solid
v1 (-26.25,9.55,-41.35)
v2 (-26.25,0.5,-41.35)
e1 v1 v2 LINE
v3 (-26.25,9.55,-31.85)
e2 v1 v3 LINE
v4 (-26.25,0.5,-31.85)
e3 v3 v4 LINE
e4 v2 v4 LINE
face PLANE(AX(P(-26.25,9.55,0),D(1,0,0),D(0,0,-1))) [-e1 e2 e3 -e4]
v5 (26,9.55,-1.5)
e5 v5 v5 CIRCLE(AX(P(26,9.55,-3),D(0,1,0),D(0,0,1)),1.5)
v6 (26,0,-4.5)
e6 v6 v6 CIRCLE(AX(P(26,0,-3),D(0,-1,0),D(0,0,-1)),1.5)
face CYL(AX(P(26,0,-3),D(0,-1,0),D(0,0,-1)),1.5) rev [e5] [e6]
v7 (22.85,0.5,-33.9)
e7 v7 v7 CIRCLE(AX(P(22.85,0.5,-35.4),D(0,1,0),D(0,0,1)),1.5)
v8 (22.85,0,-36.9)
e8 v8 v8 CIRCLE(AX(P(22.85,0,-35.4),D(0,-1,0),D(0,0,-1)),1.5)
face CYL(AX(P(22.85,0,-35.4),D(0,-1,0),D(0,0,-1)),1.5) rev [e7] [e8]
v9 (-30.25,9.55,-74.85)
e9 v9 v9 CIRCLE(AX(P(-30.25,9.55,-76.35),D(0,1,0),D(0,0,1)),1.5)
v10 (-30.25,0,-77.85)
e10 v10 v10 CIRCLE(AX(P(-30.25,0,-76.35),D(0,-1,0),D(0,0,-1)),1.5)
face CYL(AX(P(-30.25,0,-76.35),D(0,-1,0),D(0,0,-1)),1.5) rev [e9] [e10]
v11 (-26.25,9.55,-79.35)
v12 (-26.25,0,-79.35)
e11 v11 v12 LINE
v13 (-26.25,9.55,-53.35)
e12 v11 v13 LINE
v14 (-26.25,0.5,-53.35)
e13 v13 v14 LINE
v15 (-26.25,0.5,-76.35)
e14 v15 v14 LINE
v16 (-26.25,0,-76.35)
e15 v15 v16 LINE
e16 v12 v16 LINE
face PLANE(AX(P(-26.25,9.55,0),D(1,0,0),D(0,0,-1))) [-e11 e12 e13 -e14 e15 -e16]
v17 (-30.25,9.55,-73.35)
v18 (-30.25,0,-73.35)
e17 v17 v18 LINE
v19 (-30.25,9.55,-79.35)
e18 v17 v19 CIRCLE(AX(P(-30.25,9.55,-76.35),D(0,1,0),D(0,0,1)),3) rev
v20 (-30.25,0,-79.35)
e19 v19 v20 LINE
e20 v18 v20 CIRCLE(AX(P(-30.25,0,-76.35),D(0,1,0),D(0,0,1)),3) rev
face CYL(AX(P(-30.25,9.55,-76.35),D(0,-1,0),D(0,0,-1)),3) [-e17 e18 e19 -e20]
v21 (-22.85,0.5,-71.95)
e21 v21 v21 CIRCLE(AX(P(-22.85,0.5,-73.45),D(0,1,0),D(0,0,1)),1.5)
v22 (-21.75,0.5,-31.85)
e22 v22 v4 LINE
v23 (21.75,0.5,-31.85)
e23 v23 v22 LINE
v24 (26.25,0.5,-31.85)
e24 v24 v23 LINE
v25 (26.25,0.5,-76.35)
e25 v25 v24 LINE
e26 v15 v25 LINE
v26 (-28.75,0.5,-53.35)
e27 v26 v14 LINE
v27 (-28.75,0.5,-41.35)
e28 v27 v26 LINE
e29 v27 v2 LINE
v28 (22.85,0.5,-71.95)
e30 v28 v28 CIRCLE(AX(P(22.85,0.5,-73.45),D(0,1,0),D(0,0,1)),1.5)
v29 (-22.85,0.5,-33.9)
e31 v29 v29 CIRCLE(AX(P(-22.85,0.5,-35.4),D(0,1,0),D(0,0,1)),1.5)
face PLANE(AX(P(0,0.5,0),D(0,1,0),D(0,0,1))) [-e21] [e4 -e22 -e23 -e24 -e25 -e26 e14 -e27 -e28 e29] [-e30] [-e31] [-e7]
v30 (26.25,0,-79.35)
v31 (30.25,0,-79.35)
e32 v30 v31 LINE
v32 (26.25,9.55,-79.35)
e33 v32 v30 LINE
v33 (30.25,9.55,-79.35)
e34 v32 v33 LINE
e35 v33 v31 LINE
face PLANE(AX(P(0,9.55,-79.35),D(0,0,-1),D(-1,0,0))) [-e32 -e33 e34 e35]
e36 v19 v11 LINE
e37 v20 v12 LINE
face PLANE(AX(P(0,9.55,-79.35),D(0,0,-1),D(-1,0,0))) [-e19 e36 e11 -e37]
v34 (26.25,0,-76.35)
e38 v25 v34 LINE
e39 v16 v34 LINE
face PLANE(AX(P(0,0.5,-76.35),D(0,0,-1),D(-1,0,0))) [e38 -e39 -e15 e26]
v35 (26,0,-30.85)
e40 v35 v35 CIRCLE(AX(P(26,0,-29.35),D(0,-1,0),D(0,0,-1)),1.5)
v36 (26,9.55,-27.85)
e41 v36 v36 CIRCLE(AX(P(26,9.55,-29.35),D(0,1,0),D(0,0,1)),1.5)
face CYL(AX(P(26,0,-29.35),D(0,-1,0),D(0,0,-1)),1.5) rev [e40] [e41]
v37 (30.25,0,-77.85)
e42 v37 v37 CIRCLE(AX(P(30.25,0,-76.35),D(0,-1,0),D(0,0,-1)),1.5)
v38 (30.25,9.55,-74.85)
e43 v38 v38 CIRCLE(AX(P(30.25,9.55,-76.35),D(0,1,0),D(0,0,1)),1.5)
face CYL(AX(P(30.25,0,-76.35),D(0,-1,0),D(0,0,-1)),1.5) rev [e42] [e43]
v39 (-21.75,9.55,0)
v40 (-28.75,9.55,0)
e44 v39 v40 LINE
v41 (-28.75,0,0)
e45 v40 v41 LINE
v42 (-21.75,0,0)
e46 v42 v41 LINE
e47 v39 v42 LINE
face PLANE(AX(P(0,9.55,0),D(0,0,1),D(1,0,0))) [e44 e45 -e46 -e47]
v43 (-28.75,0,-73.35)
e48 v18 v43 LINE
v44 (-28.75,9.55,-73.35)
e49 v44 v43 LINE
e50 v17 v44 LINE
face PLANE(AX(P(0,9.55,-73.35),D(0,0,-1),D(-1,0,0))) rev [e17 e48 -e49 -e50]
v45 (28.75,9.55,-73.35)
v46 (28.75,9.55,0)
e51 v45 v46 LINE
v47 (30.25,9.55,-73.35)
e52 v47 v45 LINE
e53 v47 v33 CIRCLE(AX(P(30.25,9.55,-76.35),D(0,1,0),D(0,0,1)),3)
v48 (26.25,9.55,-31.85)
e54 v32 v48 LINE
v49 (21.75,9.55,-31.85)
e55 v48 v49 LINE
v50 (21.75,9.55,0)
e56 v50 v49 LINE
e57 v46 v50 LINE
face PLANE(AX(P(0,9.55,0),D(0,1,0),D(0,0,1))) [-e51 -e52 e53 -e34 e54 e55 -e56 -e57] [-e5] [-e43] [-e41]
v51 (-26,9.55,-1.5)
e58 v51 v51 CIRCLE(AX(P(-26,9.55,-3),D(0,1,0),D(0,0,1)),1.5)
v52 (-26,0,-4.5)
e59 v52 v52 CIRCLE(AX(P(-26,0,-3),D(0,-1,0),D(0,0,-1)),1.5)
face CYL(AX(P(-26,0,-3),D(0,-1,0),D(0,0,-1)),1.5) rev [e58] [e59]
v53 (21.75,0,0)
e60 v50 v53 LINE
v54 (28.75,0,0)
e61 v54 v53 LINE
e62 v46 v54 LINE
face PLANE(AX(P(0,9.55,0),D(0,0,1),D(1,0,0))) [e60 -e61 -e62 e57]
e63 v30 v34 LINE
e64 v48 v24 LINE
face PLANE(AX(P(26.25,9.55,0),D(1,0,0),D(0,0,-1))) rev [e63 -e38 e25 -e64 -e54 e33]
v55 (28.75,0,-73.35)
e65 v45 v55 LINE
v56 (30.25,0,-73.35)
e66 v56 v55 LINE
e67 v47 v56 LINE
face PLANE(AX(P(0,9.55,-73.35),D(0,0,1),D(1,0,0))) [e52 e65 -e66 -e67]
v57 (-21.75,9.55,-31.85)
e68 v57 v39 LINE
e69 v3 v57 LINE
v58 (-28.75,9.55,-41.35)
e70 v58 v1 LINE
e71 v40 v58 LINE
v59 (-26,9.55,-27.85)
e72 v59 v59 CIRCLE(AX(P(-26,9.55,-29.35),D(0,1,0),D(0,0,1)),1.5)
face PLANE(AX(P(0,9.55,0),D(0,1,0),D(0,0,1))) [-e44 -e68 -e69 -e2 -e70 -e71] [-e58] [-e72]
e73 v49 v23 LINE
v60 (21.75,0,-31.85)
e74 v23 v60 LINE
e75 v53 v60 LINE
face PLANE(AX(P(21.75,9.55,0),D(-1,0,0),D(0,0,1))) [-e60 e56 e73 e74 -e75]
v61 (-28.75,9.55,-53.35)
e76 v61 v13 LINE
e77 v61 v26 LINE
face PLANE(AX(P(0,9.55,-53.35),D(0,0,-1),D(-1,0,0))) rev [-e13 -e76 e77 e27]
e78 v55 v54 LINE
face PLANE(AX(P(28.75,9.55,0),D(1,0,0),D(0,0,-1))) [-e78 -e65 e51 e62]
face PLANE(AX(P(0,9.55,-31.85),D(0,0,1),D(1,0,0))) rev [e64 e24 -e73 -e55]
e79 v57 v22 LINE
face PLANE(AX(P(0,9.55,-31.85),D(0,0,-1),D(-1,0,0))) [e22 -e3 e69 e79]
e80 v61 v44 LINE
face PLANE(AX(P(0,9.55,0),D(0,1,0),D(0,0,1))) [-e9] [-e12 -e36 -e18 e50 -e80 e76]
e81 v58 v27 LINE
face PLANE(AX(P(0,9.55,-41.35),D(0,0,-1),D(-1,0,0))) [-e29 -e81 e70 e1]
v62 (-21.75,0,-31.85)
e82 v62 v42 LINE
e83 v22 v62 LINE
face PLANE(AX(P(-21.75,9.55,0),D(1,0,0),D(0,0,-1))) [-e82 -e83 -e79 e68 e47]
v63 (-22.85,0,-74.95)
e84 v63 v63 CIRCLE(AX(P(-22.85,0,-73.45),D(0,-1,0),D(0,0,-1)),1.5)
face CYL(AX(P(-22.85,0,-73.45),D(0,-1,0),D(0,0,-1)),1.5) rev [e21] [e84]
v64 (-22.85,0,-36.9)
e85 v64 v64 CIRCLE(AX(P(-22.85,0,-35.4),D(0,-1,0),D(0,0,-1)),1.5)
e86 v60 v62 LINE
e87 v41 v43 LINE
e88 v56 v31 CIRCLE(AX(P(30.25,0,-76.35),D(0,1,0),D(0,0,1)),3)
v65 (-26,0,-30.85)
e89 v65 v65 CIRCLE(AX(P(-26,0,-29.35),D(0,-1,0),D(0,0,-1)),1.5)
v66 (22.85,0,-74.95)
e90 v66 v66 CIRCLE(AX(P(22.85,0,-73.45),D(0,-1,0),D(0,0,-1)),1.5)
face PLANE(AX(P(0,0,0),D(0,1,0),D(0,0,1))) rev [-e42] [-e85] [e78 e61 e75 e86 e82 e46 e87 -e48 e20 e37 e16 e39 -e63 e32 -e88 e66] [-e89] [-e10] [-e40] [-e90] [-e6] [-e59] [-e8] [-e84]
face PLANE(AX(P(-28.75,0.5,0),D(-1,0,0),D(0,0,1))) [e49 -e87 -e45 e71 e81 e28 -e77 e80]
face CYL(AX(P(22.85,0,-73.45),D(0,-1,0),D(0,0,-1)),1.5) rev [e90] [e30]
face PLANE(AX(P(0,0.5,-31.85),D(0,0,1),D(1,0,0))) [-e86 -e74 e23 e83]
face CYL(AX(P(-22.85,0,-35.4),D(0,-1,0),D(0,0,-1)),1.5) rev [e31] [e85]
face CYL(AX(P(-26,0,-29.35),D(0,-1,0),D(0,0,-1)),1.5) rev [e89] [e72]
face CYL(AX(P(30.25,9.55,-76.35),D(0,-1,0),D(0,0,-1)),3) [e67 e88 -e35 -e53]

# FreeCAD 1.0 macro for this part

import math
import FreeCAD as App
import Part
import Sketcher


def add_polygon(sketch, points):
    """Adds a closed chain of lines whose ends are joined by coincident constraints."""
    first, n = sketch.GeometryCount, len(points)
    for a, b in zip(points, points[1:] + points[:1]):
        sketch.addGeometry(Part.LineSegment(App.Vector(*a, 0), App.Vector(*b, 0)), False)
    for i in range(n):
        sketch.addConstraint(Sketcher.Constraint("Coincident", first + i, 2, first + (i + 1) % n, 1))

doc = App.newDocument("Part")
body = doc.addObject("PartDesign::Body", "Body")

# Sketch on XZ plane
sketch1 = doc.addObject("Sketcher::SketchObject", "Sketch")
body.addObject(sketch1)
sketch1.AttachmentSupport = (doc.XZ_Plane, [""])
sketch1.MapMode = "FlatFace"
add_polygon(sketch1, [(-26.2, -76.3), (-26.2, -53.4), (-28.8, -53.4), (-28.8, -41.4), (-26.2, -41.4), (-26.2, -31.9), (26.2, -31.9), (26.2, -76.3)])  # lines 0-7
sketch1.addConstraint(Sketcher.Constraint("Vertical", 0))
sketch1.addConstraint(Sketcher.Constraint("Horizontal", 1))
sketch1.addConstraint(Sketcher.Constraint("Vertical", 2))
sketch1.addConstraint(Sketcher.Constraint("Horizontal", 3))
sketch1.addConstraint(Sketcher.Constraint("Vertical", 4))
sketch1.addConstraint(Sketcher.Constraint("Horizontal", 5))
sketch1.addConstraint(Sketcher.Constraint("Vertical", 6))
sketch1.addConstraint(Sketcher.Constraint("Horizontal", 7))
sketch1.addConstraint(Sketcher.Constraint("Vertical", 0, 2, 3, 2))
sketch1.addConstraint(Sketcher.Constraint("DistanceY", 0, 1, 0, 2, 23.0))
sketch1.addConstraint(Sketcher.Constraint("DistanceY", 2, 1, 2, 2, 12.0))
sketch1.addConstraint(Sketcher.Constraint("DistanceX", 1, 2, 1, 1, 2.5))
sketch1.addConstraint(Sketcher.Constraint("DistanceX", 5, 1, 5, 2, 52.5))
sketch1.addConstraint(Sketcher.Constraint("DistanceY", 4, 1, 4, 2, 9.5))
sketch1.addConstraint(Sketcher.Constraint("DistanceX", 0, 2, -1, 1, 26.25))
sketch1.addConstraint(Sketcher.Constraint("DistanceY", 0, 2, -1, 1, 53.35))
pad1 = doc.addObject("PartDesign::Pad", "Pad")
body.addObject(pad1)
pad1.Profile = sketch1
pad1.Length = 0.5
pad1.Reversed = True

# Sketch on XZ plane
sketch2 = doc.addObject("Sketcher::SketchObject", "Sketch001")
body.addObject(sketch2)
sketch2.AttachmentSupport = (doc.XZ_Plane, [""])
sketch2.MapMode = "FlatFace"
sketch2.addGeometry(Part.LineSegment(App.Vector(-28.8, -73.3, 0), App.Vector(-28.8, -53.4, 0)), False)  # 0
sketch2.addGeometry(Part.LineSegment(App.Vector(-28.8, -53.4, 0), App.Vector(-26.2, -53.4, 0)), False)  # 1
sketch2.addGeometry(Part.LineSegment(App.Vector(-26.2, -53.4, 0), App.Vector(-26.2, -79.3, 0)), False)  # 2
sketch2.addGeometry(Part.LineSegment(App.Vector(-26.2, -79.3, 0), App.Vector(-30.2, -79.3, 0)), False)  # 3
sketch2.addGeometry(Part.ArcOfCircle(Part.Circle(App.Vector(-30.2, -76.3, 0), App.Vector(0, 0, 1), 3), math.radians(90), math.radians(270)), False)  # 4
sketch2.addGeometry(Part.LineSegment(App.Vector(-30.2, -73.3, 0), App.Vector(-28.8, -73.3, 0)), False)  # 5
sketch2.addGeometry(Part.LineSegment(App.Vector(26.2, -79.3, 0), App.Vector(26.2, -31.9, 0)), False)  # 6
sketch2.addGeometry(Part.LineSegment(App.Vector(26.2, -31.9, 0), App.Vector(21.8, -31.9, 0)), False)  # 7
sketch2.addGeometry(Part.LineSegment(App.Vector(21.8, -31.9, 0), App.Vector(21.8, 0, 0)), False)  # 8
sketch2.addGeometry(Part.LineSegment(App.Vector(21.8, 0, 0), App.Vector(28.8, 0, 0)), False)  # 9
sketch2.addGeometry(Part.LineSegment(App.Vector(28.8, 0, 0), App.Vector(28.8, -73.3, 0)), False)  # 10
sketch2.addGeometry(Part.LineSegment(App.Vector(28.8, -73.3, 0), App.Vector(30.2, -73.3, 0)), False)  # 11
sketch2.addGeometry(Part.ArcOfCircle(Part.Circle(App.Vector(30.2, -76.3, 0), App.Vector(0, 0, 1), 3), math.radians(-90), math.radians(90)), False)  # 12
sketch2.addGeometry(Part.LineSegment(App.Vector(30.2, -79.3, 0), App.Vector(26.2, -79.3, 0)), False)  # 13
add_polygon(sketch2, [(-26.2, -31.9), (-26.2, -41.4), (-28.8, -41.4), (-28.8, 0), (-21.8, 0), (-21.8, -31.9)])  # lines 14-19
sketch2.addConstraint(Sketcher.Constraint("Coincident", 0, 2, 1, 1))
sketch2.addConstraint(Sketcher.Constraint("Coincident", 1, 2, 2, 1))
sketch2.addConstraint(Sketcher.Constraint("Coincident", 2, 2, 3, 1))
sketch2.addConstraint(Sketcher.Constraint("Tangent", 3, 2, 4, 2))
sketch2.addConstraint(Sketcher.Constraint("Tangent", 4, 1, 5, 1))
sketch2.addConstraint(Sketcher.Constraint("Coincident", 5, 2, 0, 1))
sketch2.addConstraint(Sketcher.Constraint("Coincident", 6, 2, 7, 1))
sketch2.addConstraint(Sketcher.Constraint("Coincident", 7, 2, 8, 1))
sketch2.addConstraint(Sketcher.Constraint("Coincident", 8, 2, 9, 1))
sketch2.addConstraint(Sketcher.Constraint("Coincident", 9, 2, 10, 1))
sketch2.addConstraint(Sketcher.Constraint("Coincident", 10, 2, 11, 1))
sketch2.addConstraint(Sketcher.Constraint("Tangent", 11, 2, 12, 2))
sketch2.addConstraint(Sketcher.Constraint("Tangent", 12, 1, 13, 1))
sketch2.addConstraint(Sketcher.Constraint("Coincident", 13, 2, 6, 1))
sketch2.addConstraint(Sketcher.Constraint("Vertical", 0))
sketch2.addConstraint(Sketcher.Constraint("Horizontal", 1))
sketch2.addConstraint(Sketcher.Constraint("Vertical", 2))
sketch2.addConstraint(Sketcher.Constraint("Horizontal", 3))
sketch2.addConstraint(Sketcher.Constraint("Horizontal", 5))
sketch2.addConstraint(Sketcher.Constraint("Vertical", 6))
sketch2.addConstraint(Sketcher.Constraint("Horizontal", 7))
sketch2.addConstraint(Sketcher.Constraint("Vertical", 8))
sketch2.addConstraint(Sketcher.Constraint("Horizontal", 9))
sketch2.addConstraint(Sketcher.Constraint("Vertical", 10))
sketch2.addConstraint(Sketcher.Constraint("Horizontal", 11))
sketch2.addConstraint(Sketcher.Constraint("Horizontal", 13))
sketch2.addConstraint(Sketcher.Constraint("Vertical", 14))
sketch2.addConstraint(Sketcher.Constraint("Horizontal", 15))
sketch2.addConstraint(Sketcher.Constraint("Vertical", 16))
sketch2.addConstraint(Sketcher.Constraint("Horizontal", 17))
sketch2.addConstraint(Sketcher.Constraint("Vertical", 18))
sketch2.addConstraint(Sketcher.Constraint("Horizontal", 19))
sketch2.addConstraint(Sketcher.Constraint("Equal", 4, 12))
sketch2.addConstraint(Sketcher.Constraint("Symmetric", 9, 2, 16, 2, -1, 1))
sketch2.addConstraint(Sketcher.Constraint("Symmetric", 4, 3, 12, 3, -2))
sketch2.addConstraint(Sketcher.Constraint("Symmetric", 8, 2, 17, 2, -2))
sketch2.addConstraint(Sketcher.Constraint("Symmetric", 6, 2, 19, 2, -2))
sketch2.addConstraint(Sketcher.Constraint("Vertical", 2, 2, 14, 2))
sketch2.addConstraint(Sketcher.Constraint("Vertical", 5, 2, 15, 2))
sketch2.addConstraint(Sketcher.Constraint("Radius", 4, 3.0))
sketch2.addConstraint(Sketcher.Constraint("DistanceX", 3, 2, 3, 1, 4.0))
sketch2.addConstraint(Sketcher.Constraint("DistanceX", 9, 1, 9, 2, 7.0))
sketch2.addConstraint(Sketcher.Constraint("DistanceY", 0, 1, 0, 2, 20.0))
sketch2.addConstraint(Sketcher.Constraint("DistanceX", 1, 1, 1, 2, 2.5))
sketch2.addConstraint(Sketcher.Constraint("DistanceY", 6, 1, 6, 2, 47.5))
sketch2.addConstraint(Sketcher.Constraint("DistanceY", 14, 2, 14, 1, 9.5))
sketch2.addConstraint(Sketcher.Constraint("DistanceX", 0, 2, 12, 3, 59.0))
sketch2.addConstraint(Sketcher.Constraint("DistanceY", 8, 1, 8, 2, 31.85))
pad2 = doc.addObject("PartDesign::Pad", "Pad001")
body.addObject(pad2)
pad2.Profile = sketch2
pad2.Length = 9.55
pad2.Reversed = True

# Sketch on XZ plane
sketch3 = doc.addObject("Sketcher::SketchObject", "Sketch002")
body.addObject(sketch3)
sketch3.AttachmentSupport = (doc.XZ_Plane, [""])
sketch3.MapMode = "FlatFace"
sketch3.addGeometry(Part.Circle(App.Vector(22.9, -73.5, 0), App.Vector(0, 0, 1), 1.5), False)
sketch3.addGeometry(Part.Circle(App.Vector(-22.9, -73.5, 0), App.Vector(0, 0, 1), 1.5), False)
sketch3.addGeometry(Part.Circle(App.Vector(-26, -29.4, 0), App.Vector(0, 0, 1), 1.5), False)
sketch3.addGeometry(Part.Circle(App.Vector(-22.9, -35.4, 0), App.Vector(0, 0, 1), 1.5), False)
sketch3.addGeometry(Part.Circle(App.Vector(22.9, -35.4, 0), App.Vector(0, 0, 1), 1.5), False)
sketch3.addGeometry(Part.Circle(App.Vector(26, -29.4, 0), App.Vector(0, 0, 1), 1.5), False)
sketch3.addGeometry(Part.Circle(App.Vector(26, -3, 0), App.Vector(0, 0, 1), 1.5), False)
sketch3.addGeometry(Part.Circle(App.Vector(-26, -3, 0), App.Vector(0, 0, 1), 1.5), False)
sketch3.addGeometry(Part.Circle(App.Vector(30.2, -76.3, 0), App.Vector(0, 0, 1), 1.5), False)
sketch3.addGeometry(Part.Circle(App.Vector(-30.2, -76.3, 0), App.Vector(0, 0, 1), 1.5), False)
sketch3.addConstraint(Sketcher.Constraint("Equal", 0, 1))
sketch3.addConstraint(Sketcher.Constraint("Equal", 1, 2))
sketch3.addConstraint(Sketcher.Constraint("Equal", 2, 3))
sketch3.addConstraint(Sketcher.Constraint("Equal", 3, 4))
sketch3.addConstraint(Sketcher.Constraint("Equal", 4, 5))
sketch3.addConstraint(Sketcher.Constraint("Equal", 5, 6))
sketch3.addConstraint(Sketcher.Constraint("Equal", 6, 7))
sketch3.addConstraint(Sketcher.Constraint("Equal", 7, 8))
sketch3.addConstraint(Sketcher.Constraint("Equal", 8, 9))
sketch3.addConstraint(Sketcher.Constraint("Symmetric", 0, 3, 1, 3, -2))
sketch3.addConstraint(Sketcher.Constraint("Symmetric", 3, 3, 4, 3, -2))
sketch3.addConstraint(Sketcher.Constraint("Symmetric", 2, 3, 5, 3, -2))
sketch3.addConstraint(Sketcher.Constraint("Symmetric", 6, 3, 7, 3, -2))
sketch3.addConstraint(Sketcher.Constraint("Symmetric", 8, 3, 9, 3, -2))
sketch3.addConstraint(Sketcher.Constraint("Vertical", 1, 3, 3, 3))
sketch3.addConstraint(Sketcher.Constraint("Vertical", 5, 3, 6, 3))
sketch3.addConstraint(Sketcher.Constraint("Diameter", 0, 3.0))
sketch3.addConstraint(Sketcher.Constraint("DistanceX", 2, 3, -1, 1, 26.0))
sketch3.addConstraint(Sketcher.Constraint("DistanceY", 6, 3, -1, 1, 3.0))
sketch3.addConstraint(Sketcher.Constraint("DistanceY", 8, 3, 5, 3, 47.0))
sketch3.addConstraint(Sketcher.Constraint("DistanceY", 3, 3, -1, 1, 35.4))
sketch3.addConstraint(Sketcher.Constraint("DistanceX", 1, 3, 0, 3, 45.7))
sketch3.addConstraint(Sketcher.Constraint("DistanceY", 1, 3, 2, 3, 44.1))
sketch3.addConstraint(Sketcher.Constraint("DistanceX", 0, 3, 8, 3, 7.4))
sketch3.addConstraint(Sketcher.Constraint("DistanceY", 0, 3, -1, 1, 73.45))
doc.recompute()
hole = doc.addObject("PartDesign::Hole", "Hole")
body.addObject(hole)
hole.Profile = sketch3
hole.ThreadType = "None"
hole.Diameter = 3
hole.DepthType = "Dimension"
hole.Depth = 12
hole.DrillPoint = "Angled"
hole.DrillPointAngle = 118

doc.recompute()
